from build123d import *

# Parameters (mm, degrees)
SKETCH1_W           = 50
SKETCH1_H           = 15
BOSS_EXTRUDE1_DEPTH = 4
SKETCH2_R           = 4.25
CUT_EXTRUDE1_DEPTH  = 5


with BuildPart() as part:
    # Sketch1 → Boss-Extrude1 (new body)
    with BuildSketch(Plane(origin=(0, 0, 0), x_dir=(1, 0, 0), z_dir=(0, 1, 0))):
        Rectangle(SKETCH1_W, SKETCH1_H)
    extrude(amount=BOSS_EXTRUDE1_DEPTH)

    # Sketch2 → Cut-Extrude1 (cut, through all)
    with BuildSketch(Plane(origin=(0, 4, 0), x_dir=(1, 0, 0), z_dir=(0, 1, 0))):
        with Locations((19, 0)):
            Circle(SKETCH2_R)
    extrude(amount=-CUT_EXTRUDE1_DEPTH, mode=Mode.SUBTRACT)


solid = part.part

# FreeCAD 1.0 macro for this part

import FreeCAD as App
import Part
import Sketcher
Q = App.Units.Quantity

doc = App.newDocument("Part")
body = doc.addObject("PartDesign::Body", "Body")

# Sketch on XZ plane
sketch1 = doc.addObject("Sketcher::SketchObject", "Sketch")
body.addObject(sketch1)
sketch1.AttachmentSupport = (doc.XZ_Plane, [""])
sketch1.MapMode = "FlatFace"
sketch1.addGeometry([
    Part.LineSegment(App.Vector(-25, -8, 0), App.Vector(-25, 8, 0)),
    Part.LineSegment(App.Vector(-25, 8, 0), App.Vector(25, 8, 0)),
    Part.LineSegment(App.Vector(25, 8, 0), App.Vector(25, -8, 0)),
    Part.LineSegment(App.Vector(25, -8, 0), App.Vector(-25, -8, 0)),
], False)
sketch1.addConstraint([
    Sketcher.Constraint("Coincident", 0, 2, 1, 1),
    Sketcher.Constraint("Coincident", 1, 2, 2, 1),
    Sketcher.Constraint("Coincident", 2, 2, 3, 1),
    Sketcher.Constraint("Coincident", 3, 2, 0, 1),
    Sketcher.Constraint("Vertical", 0),
    Sketcher.Constraint("Horizontal", 1),
    Sketcher.Constraint("Vertical", 2),
    Sketcher.Constraint("Horizontal", 3),
    Sketcher.Constraint("Symmetric", 0, 2, 2, 2, -1, 1),
    Sketcher.Constraint("DistanceX", 1, 1, 1, 2, Q("50 mm")),
    Sketcher.Constraint("DistanceY", 0, 1, 0, 2, Q("15 mm")),
])
pad1 = doc.addObject("PartDesign::Pad", "Pad")
body.addObject(pad1)
pad1.Profile = sketch1
pad1.Length = 4
pad1.Reversed = True

# Sketch on XZ plane
sketch2 = doc.addObject("Sketcher::SketchObject", "Sketch001")
body.addObject(sketch2)
sketch2.AttachmentSupport = (doc.XZ_Plane, [""])
sketch2.MapMode = "FlatFace"
sketch2.AttachmentOffset = App.Placement(App.Vector(0, 0, -4), App.Rotation())
sketch2.addGeometry(Part.Circle(App.Vector(19, 0, 0), App.Vector(0, 0, 1), 4.2), False)
sketch2.addConstraint([
    Sketcher.Constraint("PointOnObject", 0, 3, -1),
    Sketcher.Constraint("Diameter", 0, Q("8.5 mm")),
    Sketcher.Constraint("DistanceX", -1, 1, 0, 3, Q("19 mm")),
])
pocket1 = doc.addObject("PartDesign::Pocket", "Pocket")
body.addObject(pocket1)
pocket1.Profile = sketch2
pocket1.Type = "ThroughAll"
pocket1.Reversed = True

doc.recompute()
